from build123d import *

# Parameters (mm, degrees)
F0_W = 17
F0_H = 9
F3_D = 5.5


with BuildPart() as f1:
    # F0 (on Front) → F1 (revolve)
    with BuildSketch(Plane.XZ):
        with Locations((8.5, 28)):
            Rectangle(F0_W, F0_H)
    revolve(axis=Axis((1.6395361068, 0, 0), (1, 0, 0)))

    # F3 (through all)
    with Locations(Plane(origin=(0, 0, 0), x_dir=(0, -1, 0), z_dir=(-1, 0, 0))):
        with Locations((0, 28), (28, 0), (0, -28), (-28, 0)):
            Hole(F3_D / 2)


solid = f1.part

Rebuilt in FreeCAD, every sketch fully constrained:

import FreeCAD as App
import Part
import Sketcher


def add_polygon(sketch, points):
    """Adds a closed chain of lines whose ends are joined by coincident constraints."""
    first, n = sketch.GeometryCount, len(points)
    for a, b in zip(points, points[1:] + points[:1]):
        sketch.addGeometry(Part.LineSegment(App.Vector(*a, 0), App.Vector(*b, 0)), False)
    for i in range(n):
        sketch.addConstraint(Sketcher.Constraint("Coincident", first + i, 2, first + (i + 1) % n, 1))

doc = App.newDocument("Part")
body = doc.addObject("PartDesign::Body", "Body")

# Sketch on XZ plane
sketch1 = doc.addObject("Sketcher::SketchObject", "Sketch")
body.addObject(sketch1)
sketch1.AttachmentSupport = (doc.XZ_Plane, [""])
sketch1.MapMode = "FlatFace"
add_polygon(sketch1, [(0, 32.5), (0, 23.5), (17, 23.5), (17, 32.5)])  # lines 0-3
sketch1.addConstraint(Sketcher.Constraint("Vertical", 0))
sketch1.addConstraint(Sketcher.Constraint("Horizontal", 1))
sketch1.addConstraint(Sketcher.Constraint("Vertical", 2))
sketch1.addConstraint(Sketcher.Constraint("Horizontal", 3))
sketch1.addConstraint(Sketcher.Constraint("PointOnObject", 0, 2, -2))
sketch1.addConstraint(Sketcher.Constraint("DistanceX", 1, 1, 1, 2, 17.0))
sketch1.addConstraint(Sketcher.Constraint("DistanceY", 0, 2, 0, 1, 9.0))
sketch1.addConstraint(Sketcher.Constraint("DistanceY", -1, 1, 0, 2, 23.5))
revolution = doc.addObject("PartDesign::Revolution", "Revolution")
body.addObject(revolution)
revolution.Profile = sketch1
revolution.ReferenceAxis = (sketch1, ["H_Axis"])
revolution.Angle = 360

# Sketch on YZ plane
sketch2 = doc.addObject("Sketcher::SketchObject", "Sketch001")
body.addObject(sketch2)
sketch2.AttachmentSupport = (doc.YZ_Plane, [""])
sketch2.MapMode = "FlatFace"
sketch2.addGeometry(Part.Circle(App.Vector(0, 28, 0), App.Vector(0, 0, 1), 2.75), False)
sketch2.addGeometry(Part.Circle(App.Vector(-28, 0, 0), App.Vector(0, 0, 1), 2.75), False)
sketch2.addGeometry(Part.Circle(App.Vector(0, -28, 0), App.Vector(0, 0, 1), 2.75), False)
sketch2.addGeometry(Part.Circle(App.Vector(28, 0, 0), App.Vector(0, 0, 1), 2.75), False)
sketch2.addConstraint(Sketcher.Constraint("Equal", 0, 1))
sketch2.addConstraint(Sketcher.Constraint("Equal", 1, 2))
sketch2.addConstraint(Sketcher.Constraint("Equal", 2, 3))
sketch2.addConstraint(Sketcher.Constraint("Symmetric", 0, 3, 2, 3, -1, 1))
sketch2.addConstraint(Sketcher.Constraint("Symmetric", 1, 3, 3, 3, -1, 1))
sketch2.addConstraint(Sketcher.Constraint("PointOnObject", 0, 3, -2))
sketch2.addConstraint(Sketcher.Constraint("PointOnObject", 1, 3, -1))
sketch2.addConstraint(Sketcher.Constraint("Diameter", 0, 5.5))
sketch2.addConstraint(Sketcher.Constraint("DistanceY", -1, 1, 0, 3, 28.0))
sketch2.addConstraint(Sketcher.Constraint("DistanceX", 1, 3, -1, 1, 28.0))
doc.recompute()
hole = doc.addObject("PartDesign::Hole", "Hole")
body.addObject(hole)
hole.Profile = sketch2
hole.ThreadType = "None"
hole.Diameter = 5.5
hole.DepthType = "ThroughAll"
hole.Reversed = True

doc.recompute()
